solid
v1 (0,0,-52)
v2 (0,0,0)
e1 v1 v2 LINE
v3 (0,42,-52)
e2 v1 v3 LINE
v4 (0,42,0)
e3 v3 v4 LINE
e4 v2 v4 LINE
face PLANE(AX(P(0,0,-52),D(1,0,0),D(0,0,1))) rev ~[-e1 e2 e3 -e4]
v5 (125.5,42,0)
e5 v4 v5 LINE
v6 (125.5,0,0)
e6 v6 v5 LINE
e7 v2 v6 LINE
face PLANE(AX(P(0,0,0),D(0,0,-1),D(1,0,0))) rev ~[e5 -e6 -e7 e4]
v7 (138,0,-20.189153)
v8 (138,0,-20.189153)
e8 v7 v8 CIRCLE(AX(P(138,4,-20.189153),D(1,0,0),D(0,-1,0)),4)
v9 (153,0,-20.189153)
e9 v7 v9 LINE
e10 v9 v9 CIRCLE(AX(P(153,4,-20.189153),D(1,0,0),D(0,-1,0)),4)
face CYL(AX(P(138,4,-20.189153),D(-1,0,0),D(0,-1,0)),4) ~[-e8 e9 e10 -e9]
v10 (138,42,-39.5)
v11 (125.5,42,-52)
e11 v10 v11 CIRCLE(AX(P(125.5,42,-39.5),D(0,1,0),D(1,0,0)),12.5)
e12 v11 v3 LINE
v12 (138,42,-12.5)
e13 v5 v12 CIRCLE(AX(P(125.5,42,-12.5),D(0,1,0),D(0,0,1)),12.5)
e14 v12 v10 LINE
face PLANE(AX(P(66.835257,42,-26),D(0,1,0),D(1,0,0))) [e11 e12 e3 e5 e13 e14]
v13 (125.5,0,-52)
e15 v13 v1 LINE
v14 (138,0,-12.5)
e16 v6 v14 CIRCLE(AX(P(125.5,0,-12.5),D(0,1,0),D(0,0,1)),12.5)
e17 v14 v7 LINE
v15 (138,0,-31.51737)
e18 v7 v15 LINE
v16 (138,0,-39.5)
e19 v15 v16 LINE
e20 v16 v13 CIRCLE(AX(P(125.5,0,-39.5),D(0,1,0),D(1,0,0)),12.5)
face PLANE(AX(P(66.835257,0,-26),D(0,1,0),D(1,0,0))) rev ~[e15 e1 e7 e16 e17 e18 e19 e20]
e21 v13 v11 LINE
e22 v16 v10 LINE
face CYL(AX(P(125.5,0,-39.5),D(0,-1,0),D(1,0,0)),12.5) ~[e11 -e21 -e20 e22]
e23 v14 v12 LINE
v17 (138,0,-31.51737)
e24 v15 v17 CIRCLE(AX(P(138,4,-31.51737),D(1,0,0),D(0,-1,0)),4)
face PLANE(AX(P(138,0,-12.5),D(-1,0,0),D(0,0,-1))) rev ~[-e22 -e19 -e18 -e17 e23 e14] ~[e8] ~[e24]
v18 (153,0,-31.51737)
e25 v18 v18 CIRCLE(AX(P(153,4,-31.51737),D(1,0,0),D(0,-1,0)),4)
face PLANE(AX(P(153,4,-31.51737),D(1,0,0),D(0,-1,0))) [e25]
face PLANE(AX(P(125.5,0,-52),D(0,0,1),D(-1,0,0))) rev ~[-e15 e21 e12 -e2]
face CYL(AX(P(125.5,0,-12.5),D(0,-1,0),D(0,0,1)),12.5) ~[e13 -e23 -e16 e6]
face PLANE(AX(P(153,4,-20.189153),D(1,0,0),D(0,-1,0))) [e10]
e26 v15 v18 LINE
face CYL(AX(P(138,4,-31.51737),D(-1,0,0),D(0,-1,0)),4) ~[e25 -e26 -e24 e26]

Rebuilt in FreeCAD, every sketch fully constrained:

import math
import FreeCAD as App
import Part
import Sketcher

V = App.Vector
Q = App.Units.Quantity

doc = App.newDocument("Part")
body = doc.addObject("PartDesign::Body", "Body")

# Sketch on XZ plane
sketch1 = body.newObject("Sketcher::SketchObject", "Sketch")
sketch1.AttachmentSupport = (doc.getObject("XZ_Plane"), [""])
sketch1.MapMode = "FlatFace"
sketch1.addGeometry(Part.LineSegment(V(0, 0, 0), V(125.5, 0, 0)), False)
sketch1.addGeometry(Part.ArcOfCircle(Part.Circle(V(125.5, -12.5, 0), V(0, 0, 1), 12.5), math.radians(0), math.radians(90)), False)
sketch1.addGeometry(Part.LineSegment(V(138, -12.5, 0), V(138, -39.5, 0)), False)
sketch1.addGeometry(Part.ArcOfCircle(Part.Circle(V(125.5, -39.5, 0), V(0, 0, 1), 12.5), math.radians(-90), math.radians(0)), False)
sketch1.addGeometry(Part.LineSegment(V(125.5, -52, 0), V(0, -52, 0)), False)
sketch1.addGeometry(Part.LineSegment(V(0, -52, 0), V(0, 0, 0)), False)
sketch1.addConstraint(Sketcher.Constraint("Tangent", 0, 2, 1, 2))
sketch1.addConstraint(Sketcher.Constraint("Tangent", 1, 1, 2, 1))
sketch1.addConstraint(Sketcher.Constraint("Tangent", 2, 2, 3, 2))
sketch1.addConstraint(Sketcher.Constraint("Tangent", 3, 1, 4, 1))
sketch1.addConstraint(Sketcher.Constraint("Coincident", 4, 2, 5, 1))
sketch1.addConstraint(Sketcher.Constraint("Coincident", 5, 2, 0, 1))
sketch1.addConstraint(Sketcher.Constraint("Horizontal", 0))
sketch1.addConstraint(Sketcher.Constraint("Vertical", 2))
sketch1.addConstraint(Sketcher.Constraint("Horizontal", 4))
sketch1.addConstraint(Sketcher.Constraint("Vertical", 5))
sketch1.addConstraint(Sketcher.Constraint("Coincident", 5, 2, -1, 1))
sketch1.addConstraint(Sketcher.Constraint("Equal", 1, 3))
sketch1.addConstraint(Sketcher.Constraint("Radius", 1, Q("12.5 mm")))
sketch1.addConstraint(Sketcher.Constraint("DistanceY", 2, 2, 2, 1, Q("27 mm")))
sketch1.addConstraint(Sketcher.Constraint("DistanceX", 0, 1, 0, 2, Q("125.5 mm")))
pad1 = body.newObject("PartDesign::Pad", "Pad")
pad1.Profile = sketch1
pad1.Length = 42
pad1.Reversed = True

# Sketch on YZ plane
sketch2 = body.newObject("Sketcher::SketchObject", "Sketch001")
sketch2.AttachmentSupport = (doc.getObject("YZ_Plane"), [""])
sketch2.MapMode = "FlatFace"
sketch2.AttachmentOffset = App.Placement(V(0, 0, 138), App.Rotation())
sketch2.addGeometry(Part.Circle(V(4, -20.189153, 0), V(0, 0, 1), 4), False)
sketch2.addGeometry(Part.Circle(V(4, -31.51737, 0), V(0, 0, 1), 4), False)
sketch2.addConstraint(Sketcher.Constraint("Equal", 0, 1))
sketch2.addConstraint(Sketcher.Constraint("Vertical", 0, 3, 1, 3))
sketch2.addConstraint(Sketcher.Constraint("Diameter", 0, Q("8 mm")))
sketch2.addConstraint(Sketcher.Constraint("DistanceX", -1, 1, 0, 3, Q("4 mm")))
sketch2.addConstraint(Sketcher.Constraint("DistanceY", 1, 3, -1, 1, Q("31.51737 mm")))
sketch2.addConstraint(Sketcher.Constraint("DistanceY", 0, 3, -1, 1, Q("20.189153 mm")))
pad2 = body.newObject("PartDesign::Pad", "Pad001")
pad2.Profile = sketch2
pad2.Length = 15

doc.recompute()
